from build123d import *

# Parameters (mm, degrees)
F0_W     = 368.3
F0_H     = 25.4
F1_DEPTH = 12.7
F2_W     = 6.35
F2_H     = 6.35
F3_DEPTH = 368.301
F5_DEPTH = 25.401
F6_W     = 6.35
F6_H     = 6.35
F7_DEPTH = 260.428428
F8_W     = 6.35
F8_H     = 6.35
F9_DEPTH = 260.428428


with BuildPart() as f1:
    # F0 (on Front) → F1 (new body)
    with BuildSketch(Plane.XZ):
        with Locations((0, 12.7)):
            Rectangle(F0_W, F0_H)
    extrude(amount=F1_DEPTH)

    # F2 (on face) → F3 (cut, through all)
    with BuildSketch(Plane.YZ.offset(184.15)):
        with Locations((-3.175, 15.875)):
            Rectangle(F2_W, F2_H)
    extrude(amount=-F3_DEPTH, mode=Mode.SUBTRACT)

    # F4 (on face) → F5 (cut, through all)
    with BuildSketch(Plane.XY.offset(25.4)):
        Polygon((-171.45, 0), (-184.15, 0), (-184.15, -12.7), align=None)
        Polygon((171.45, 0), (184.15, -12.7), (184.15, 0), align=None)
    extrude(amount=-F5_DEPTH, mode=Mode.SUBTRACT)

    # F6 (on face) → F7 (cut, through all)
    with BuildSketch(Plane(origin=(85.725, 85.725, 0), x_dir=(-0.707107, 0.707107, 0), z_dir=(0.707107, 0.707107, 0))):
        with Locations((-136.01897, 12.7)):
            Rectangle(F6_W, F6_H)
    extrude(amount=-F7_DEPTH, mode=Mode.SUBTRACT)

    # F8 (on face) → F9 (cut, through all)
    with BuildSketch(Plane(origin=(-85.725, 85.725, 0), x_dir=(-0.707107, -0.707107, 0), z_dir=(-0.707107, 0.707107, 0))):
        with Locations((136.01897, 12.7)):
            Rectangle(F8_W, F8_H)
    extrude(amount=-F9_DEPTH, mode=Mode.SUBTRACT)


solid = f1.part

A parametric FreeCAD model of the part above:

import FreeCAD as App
import Part
import Sketcher
from FreeCAD import Vector
Q = App.Units.Quantity

doc = App.newDocument("Part")
body = doc.addObject("PartDesign::Body", "Body")

# Sketch on XZ plane
sketch1 = doc.addObject("Sketcher::SketchObject", "Sketch")
body.addObject(sketch1)
sketch1.AttachmentSupport = (doc.XZ_Plane, [""])
sketch1.MapMode = "FlatFace"
sketch1.addGeometry([
    Part.LineSegment(Vector(-184.15, 25.4, 0), Vector(-184.15, 0, 0)),
    Part.LineSegment(Vector(-184.15, 0, 0), Vector(184.15, 0, 0)),
    Part.LineSegment(Vector(184.15, 0, 0), Vector(184.15, 25.4, 0)),
    Part.LineSegment(Vector(184.15, 25.4, 0), Vector(-184.15, 25.4, 0)),
], False)
sketch1.addConstraint([
    Sketcher.Constraint("Coincident", 0, 2, 1, 1),
    Sketcher.Constraint("Coincident", 1, 2, 2, 1),
    Sketcher.Constraint("Coincident", 2, 2, 3, 1),
    Sketcher.Constraint("Coincident", 3, 2, 0, 1),
    Sketcher.Constraint("Vertical", 0),
    Sketcher.Constraint("Horizontal", 1),
    Sketcher.Constraint("Vertical", 2),
    Sketcher.Constraint("Horizontal", 3),
    Sketcher.Constraint("Symmetric", 0, 2, 1, 2, -1, 1),
    Sketcher.Constraint("DistanceY", 0, 2, 0, 1, Q("1 in")),
    Sketcher.Constraint("DistanceX", 1, 1, 1, 2, Q("14.5 in")),
])
pad1 = doc.addObject("PartDesign::Pad", "Pad")
body.addObject(pad1)
pad1.Profile = sketch1
pad1.Length = Q("0.5 in")

# Sketch on YZ plane
sketch2 = doc.addObject("Sketcher::SketchObject", "Sketch001")
body.addObject(sketch2)
sketch2.AttachmentSupport = (doc.YZ_Plane, [""])
sketch2.MapMode = "FlatFace"
sketch2.AttachmentOffset = App.Placement(Vector(0, 0, 7.25 * 25.4), App.Rotation())
sketch2.addGeometry([
    Part.LineSegment(Vector(-6.35, 19.05, 0), Vector(-6.35, 12.7, 0)),
    Part.LineSegment(Vector(-6.35, 12.7, 0), Vector(0, 12.7, 0)),
    Part.LineSegment(Vector(0, 12.7, 0), Vector(0, 19.05, 0)),
    Part.LineSegment(Vector(0, 19.05, 0), Vector(-6.35, 19.05, 0)),
], False)
sketch2.addConstraint([
    Sketcher.Constraint("Coincident", 0, 2, 1, 1),
    Sketcher.Constraint("Coincident", 1, 2, 2, 1),
    Sketcher.Constraint("Coincident", 2, 2, 3, 1),
    Sketcher.Constraint("Coincident", 3, 2, 0, 1),
    Sketcher.Constraint("Vertical", 0),
    Sketcher.Constraint("Horizontal", 1),
    Sketcher.Constraint("Vertical", 2),
    Sketcher.Constraint("Horizontal", 3),
    Sketcher.Constraint("PointOnObject", 1, 2, -2),
    Sketcher.Constraint("Equal", 3, 0),
    Sketcher.Constraint("DistanceX", 1, 1, 1, 2, Q("0.25 in")),
    Sketcher.Constraint("DistanceY", -1, 1, 0, 2, Q("0.5 in")),
])
pocket1 = doc.addObject("PartDesign::Pocket", "Pocket")
body.addObject(pocket1)
pocket1.Profile = sketch2
pocket1.Type = "ThroughAll"

# Sketch on XY plane
sketch3 = doc.addObject("Sketcher::SketchObject", "Sketch002")
body.addObject(sketch3)
sketch3.AttachmentSupport = (doc.XY_Plane, [""])
sketch3.MapMode = "FlatFace"
sketch3.AttachmentOffset = App.Placement(Vector(0, 0, 1 * 25.4), App.Rotation())
sketch3.addGeometry([
    Part.LineSegment(Vector(-171.45, 0, 0), Vector(-184.15, 0, 0)),  # 0
    Part.LineSegment(Vector(-184.15, 0, 0), Vector(-184.15, -12.7, 0)),  # 1
    Part.LineSegment(Vector(-184.15, -12.7, 0), Vector(-171.45, 0, 0)),  # 2
    Part.LineSegment(Vector(171.45, 0, 0), Vector(184.15, -12.7, 0)),  # 3
    Part.LineSegment(Vector(184.15, -12.7, 0), Vector(184.15, 0, 0)),  # 4
    Part.LineSegment(Vector(184.15, 0, 0), Vector(171.45, 0, 0)),  # 5
], False)
sketch3.addConstraint([
    Sketcher.Constraint("Coincident", 0, 2, 1, 1),
    Sketcher.Constraint("Coincident", 1, 2, 2, 1),
    Sketcher.Constraint("Coincident", 2, 2, 0, 1),
    Sketcher.Constraint("Coincident", 3, 2, 4, 1),
    Sketcher.Constraint("Coincident", 4, 2, 5, 1),
    Sketcher.Constraint("Coincident", 5, 2, 3, 1),
    Sketcher.Constraint("Horizontal", 0),
    Sketcher.Constraint("Vertical", 1),
    Sketcher.Constraint("Vertical", 4),
    Sketcher.Constraint("Horizontal", 5),
    Sketcher.Constraint("Symmetric", 0, 2, 4, 2, -1, 1),
    Sketcher.Constraint("Symmetric", 2, 2, 5, 2, -2),
    Sketcher.Constraint("Perpendicular", 2, 3),
    Sketcher.Constraint("Horizontal", 1, 2, 3, 2),
    Sketcher.Constraint("DistanceX", 0, 2, 0, 1, Q("0.5 in")),
    Sketcher.Constraint("DistanceX", 2, 2, 3, 2, Q("14 in")),
])
pocket2 = doc.addObject("PartDesign::Pocket", "Pocket001")
body.addObject(pocket2)
pocket2.Profile = sketch3
pocket2.Type = "ThroughAll"

# Sketch on an angled plane
sketch4 = doc.addObject("Sketcher::SketchObject", "Sketch003")
body.addObject(sketch4)
sketch4.Placement = App.Placement(Vector(85.725, 85.725, 0), App.Rotation(Vector(-0.707106781, 0.707106781, 0), Vector(0, 0, 0.999999999), Vector(0.707106781, 0.707106781, 0), "ZXY"))
sketch4.addGeometry([
    Part.LineSegment(Vector(-139.19397, 15.875, 0), Vector(-139.19397, 9.525, 0)),
    Part.LineSegment(Vector(-139.19397, 9.525, 0), Vector(-132.84397, 9.525, 0)),
    Part.LineSegment(Vector(-132.84397, 9.525, 0), Vector(-132.84397, 15.875, 0)),
    Part.LineSegment(Vector(-132.84397, 15.875, 0), Vector(-139.19397, 15.875, 0)),
], False)
sketch4.addConstraint([
    Sketcher.Constraint("Coincident", 0, 2, 1, 1),
    Sketcher.Constraint("Coincident", 1, 2, 2, 1),
    Sketcher.Constraint("Coincident", 2, 2, 3, 1),
    Sketcher.Constraint("Coincident", 3, 2, 0, 1),
    Sketcher.Constraint("Vertical", 0),
    Sketcher.Constraint("Horizontal", 1),
    Sketcher.Constraint("Vertical", 2),
    Sketcher.Constraint("Horizontal", 3),
    Sketcher.Constraint("Equal", 3, 0),
    Sketcher.Constraint("DistanceX", 1, 1, 1, 2, Q("0.25 in")),
    Sketcher.Constraint("DistanceY", -1, 1, 0, 2, Q("0.375 in")),
    Sketcher.Constraint("DistanceX", 0, 2, -1, 1, Q("139.19397 mm")),
])
pocket3 = doc.addObject("PartDesign::Pocket", "Pocket002")
body.addObject(pocket3)
pocket3.Profile = sketch4
pocket3.Type = "ThroughAll"

# Sketch on an angled plane
sketch5 = doc.addObject("Sketcher::SketchObject", "Sketch004")
body.addObject(sketch5)
sketch5.Placement = App.Placement(Vector(-85.725, 85.725, 0), App.Rotation(Vector(-0.707106781, -0.707106781, 0), Vector(0, 0, 0.999999999), Vector(-0.707106781, 0.707106781, 0), "ZXY"))
sketch5.addGeometry([
    Part.LineSegment(Vector(132.84397, 15.875, 0), Vector(132.84397, 9.525, 0)),
    Part.LineSegment(Vector(132.84397, 9.525, 0), Vector(139.19397, 9.525, 0)),
    Part.LineSegment(Vector(139.19397, 9.525, 0), Vector(139.19397, 15.875, 0)),
    Part.LineSegment(Vector(139.19397, 15.875, 0), Vector(132.84397, 15.875, 0)),
], False)
sketch5.addConstraint([
    Sketcher.Constraint("Coincident", 0, 2, 1, 1),
    Sketcher.Constraint("Coincident", 1, 2, 2, 1),
    Sketcher.Constraint("Coincident", 2, 2, 3, 1),
    Sketcher.Constraint("Coincident", 3, 2, 0, 1),
    Sketcher.Constraint("Vertical", 0),
    Sketcher.Constraint("Horizontal", 1),
    Sketcher.Constraint("Vertical", 2),
    Sketcher.Constraint("Horizontal", 3),
    Sketcher.Constraint("Equal", 3, 0),
    Sketcher.Constraint("DistanceX", 1, 1, 1, 2, Q("0.25 in")),
    Sketcher.Constraint("DistanceY", -1, 1, 0, 2, Q("0.375 in")),
    Sketcher.Constraint("DistanceX", -1, 1, 0, 2, Q("132.84397 mm")),
])
pocket4 = doc.addObject("PartDesign::Pocket", "Pocket003")
body.addObject(pocket4)
pocket4.Profile = sketch5
pocket4.Type = "ThroughAll"

doc.recompute()
